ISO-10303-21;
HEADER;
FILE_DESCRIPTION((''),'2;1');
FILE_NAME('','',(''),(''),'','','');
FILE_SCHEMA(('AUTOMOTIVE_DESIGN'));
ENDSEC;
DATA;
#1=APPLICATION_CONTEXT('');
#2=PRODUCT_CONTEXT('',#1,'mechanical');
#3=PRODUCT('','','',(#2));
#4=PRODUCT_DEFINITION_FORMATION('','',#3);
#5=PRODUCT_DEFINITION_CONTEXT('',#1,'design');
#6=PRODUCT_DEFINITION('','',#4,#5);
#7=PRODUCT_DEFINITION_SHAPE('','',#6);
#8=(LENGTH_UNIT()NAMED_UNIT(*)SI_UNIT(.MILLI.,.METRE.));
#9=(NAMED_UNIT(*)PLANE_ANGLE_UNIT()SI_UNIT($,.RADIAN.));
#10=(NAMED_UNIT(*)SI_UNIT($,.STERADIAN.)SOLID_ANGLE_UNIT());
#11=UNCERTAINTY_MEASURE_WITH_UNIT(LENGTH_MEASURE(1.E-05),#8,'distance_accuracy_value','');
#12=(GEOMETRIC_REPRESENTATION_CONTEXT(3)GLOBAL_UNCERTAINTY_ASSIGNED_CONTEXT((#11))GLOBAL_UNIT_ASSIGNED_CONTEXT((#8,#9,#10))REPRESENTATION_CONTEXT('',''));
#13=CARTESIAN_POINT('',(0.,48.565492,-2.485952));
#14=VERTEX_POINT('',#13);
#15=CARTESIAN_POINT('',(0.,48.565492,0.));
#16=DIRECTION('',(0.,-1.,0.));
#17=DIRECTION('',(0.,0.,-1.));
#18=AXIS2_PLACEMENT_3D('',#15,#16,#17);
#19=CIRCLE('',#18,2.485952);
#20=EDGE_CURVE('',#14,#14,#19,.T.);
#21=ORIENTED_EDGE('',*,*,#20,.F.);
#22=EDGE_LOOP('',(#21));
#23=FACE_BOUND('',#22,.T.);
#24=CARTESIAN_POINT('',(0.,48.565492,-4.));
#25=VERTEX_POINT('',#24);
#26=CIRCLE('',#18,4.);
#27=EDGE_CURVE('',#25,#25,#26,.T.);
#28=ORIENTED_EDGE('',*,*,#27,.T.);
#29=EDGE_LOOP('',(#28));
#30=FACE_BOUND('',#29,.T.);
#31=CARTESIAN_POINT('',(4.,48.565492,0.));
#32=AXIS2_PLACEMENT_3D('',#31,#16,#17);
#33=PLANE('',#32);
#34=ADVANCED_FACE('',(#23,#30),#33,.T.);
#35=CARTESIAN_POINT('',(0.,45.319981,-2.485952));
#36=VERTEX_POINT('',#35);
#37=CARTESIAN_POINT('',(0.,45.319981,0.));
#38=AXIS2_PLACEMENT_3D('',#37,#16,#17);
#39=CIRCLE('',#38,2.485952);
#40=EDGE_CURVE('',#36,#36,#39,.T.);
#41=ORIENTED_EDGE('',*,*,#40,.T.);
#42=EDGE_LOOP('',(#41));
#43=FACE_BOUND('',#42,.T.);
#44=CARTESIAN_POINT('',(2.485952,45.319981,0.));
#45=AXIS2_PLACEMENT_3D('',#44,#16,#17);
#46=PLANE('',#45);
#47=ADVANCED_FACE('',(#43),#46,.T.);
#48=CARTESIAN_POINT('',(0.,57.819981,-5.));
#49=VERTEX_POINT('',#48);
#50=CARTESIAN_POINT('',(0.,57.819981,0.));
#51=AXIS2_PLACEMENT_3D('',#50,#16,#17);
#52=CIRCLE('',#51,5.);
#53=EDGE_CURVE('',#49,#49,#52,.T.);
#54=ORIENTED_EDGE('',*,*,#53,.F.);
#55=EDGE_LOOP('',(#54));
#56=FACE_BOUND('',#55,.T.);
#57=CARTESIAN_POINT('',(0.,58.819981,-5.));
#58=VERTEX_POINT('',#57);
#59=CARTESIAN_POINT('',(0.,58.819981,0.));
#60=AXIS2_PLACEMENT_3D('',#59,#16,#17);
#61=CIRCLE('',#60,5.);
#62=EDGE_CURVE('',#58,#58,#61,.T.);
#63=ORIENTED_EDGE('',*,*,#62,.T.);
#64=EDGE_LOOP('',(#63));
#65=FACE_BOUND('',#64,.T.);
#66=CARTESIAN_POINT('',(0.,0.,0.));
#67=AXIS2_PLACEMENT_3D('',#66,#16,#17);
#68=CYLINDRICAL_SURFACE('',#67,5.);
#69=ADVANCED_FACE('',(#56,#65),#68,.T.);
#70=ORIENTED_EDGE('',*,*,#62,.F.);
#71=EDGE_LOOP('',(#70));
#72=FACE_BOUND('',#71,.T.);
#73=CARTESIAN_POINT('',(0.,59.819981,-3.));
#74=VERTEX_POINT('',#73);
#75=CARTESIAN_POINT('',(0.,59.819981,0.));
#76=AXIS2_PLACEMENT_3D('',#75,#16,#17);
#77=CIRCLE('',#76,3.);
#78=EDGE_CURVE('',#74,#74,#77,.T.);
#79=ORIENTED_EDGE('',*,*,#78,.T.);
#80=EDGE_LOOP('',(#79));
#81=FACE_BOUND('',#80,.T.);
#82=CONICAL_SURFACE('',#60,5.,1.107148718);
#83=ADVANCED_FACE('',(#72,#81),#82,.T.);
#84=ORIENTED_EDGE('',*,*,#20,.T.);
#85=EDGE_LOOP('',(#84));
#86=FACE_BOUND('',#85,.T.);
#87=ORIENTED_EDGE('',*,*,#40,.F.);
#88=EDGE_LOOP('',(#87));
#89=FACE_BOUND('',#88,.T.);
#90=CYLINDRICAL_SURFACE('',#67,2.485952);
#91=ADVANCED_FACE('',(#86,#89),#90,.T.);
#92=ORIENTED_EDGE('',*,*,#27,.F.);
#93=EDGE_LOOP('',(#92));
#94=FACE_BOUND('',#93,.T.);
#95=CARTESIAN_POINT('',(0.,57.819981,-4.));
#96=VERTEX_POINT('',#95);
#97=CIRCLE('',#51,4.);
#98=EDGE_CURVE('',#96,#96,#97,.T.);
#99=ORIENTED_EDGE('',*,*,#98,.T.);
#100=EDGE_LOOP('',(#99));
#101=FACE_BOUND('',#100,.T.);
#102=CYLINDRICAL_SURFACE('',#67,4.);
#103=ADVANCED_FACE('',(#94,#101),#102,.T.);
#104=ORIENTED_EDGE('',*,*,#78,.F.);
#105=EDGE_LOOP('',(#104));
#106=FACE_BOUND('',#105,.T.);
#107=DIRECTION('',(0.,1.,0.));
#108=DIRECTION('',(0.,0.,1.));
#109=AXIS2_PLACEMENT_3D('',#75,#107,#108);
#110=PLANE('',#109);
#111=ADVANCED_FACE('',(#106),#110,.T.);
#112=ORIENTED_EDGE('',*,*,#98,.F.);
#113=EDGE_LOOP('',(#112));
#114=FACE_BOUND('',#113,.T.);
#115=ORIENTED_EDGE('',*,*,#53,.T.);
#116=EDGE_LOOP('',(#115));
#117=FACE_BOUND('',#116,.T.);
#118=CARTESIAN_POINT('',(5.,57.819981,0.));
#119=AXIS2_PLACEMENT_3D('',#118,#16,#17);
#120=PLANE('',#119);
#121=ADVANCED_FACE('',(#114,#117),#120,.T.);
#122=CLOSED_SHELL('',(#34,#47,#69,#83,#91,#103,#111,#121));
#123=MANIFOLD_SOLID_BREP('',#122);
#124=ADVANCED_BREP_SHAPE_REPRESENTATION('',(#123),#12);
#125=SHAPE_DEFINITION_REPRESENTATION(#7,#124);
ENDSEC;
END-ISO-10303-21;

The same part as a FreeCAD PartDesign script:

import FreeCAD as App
import Part
import Sketcher


def add_polygon(sketch, points):
    """Adds a closed chain of lines whose ends are joined by coincident constraints."""
    first, n = sketch.GeometryCount, len(points)
    for a, b in zip(points, points[1:] + points[:1]):
        sketch.addGeometry(Part.LineSegment(App.Vector(*a, 0), App.Vector(*b, 0)), False)
    for i in range(n):
        sketch.addConstraint(Sketcher.Constraint("Coincident", first + i, 2, first + (i + 1) % n, 1))

doc = App.newDocument("Part")
body = doc.addObject("PartDesign::Body", "Body")

# Sketch on XY plane
sketch1 = body.newObject("Sketcher::SketchObject", "Sketch")
sketch1.AttachmentSupport = (doc.getObject("XY_Plane"), [""])
sketch1.MapMode = "FlatFace"
add_polygon(sketch1, [(3, 59.8), (0, 59.8), (0, 45.3), (2.5, 45.3), (2.5, 48.6), (4, 48.6), (4, 57.8), (5, 57.8), (5, 58.8)])  # lines 0-8
sketch1.addConstraint(Sketcher.Constraint("Horizontal", 0))
sketch1.addConstraint(Sketcher.Constraint("Vertical", 1))
sketch1.addConstraint(Sketcher.Constraint("Horizontal", 2))
sketch1.addConstraint(Sketcher.Constraint("Vertical", 3))
sketch1.addConstraint(Sketcher.Constraint("Horizontal", 4))
sketch1.addConstraint(Sketcher.Constraint("Vertical", 5))
sketch1.addConstraint(Sketcher.Constraint("Horizontal", 6))
sketch1.addConstraint(Sketcher.Constraint("Vertical", 7))
sketch1.addConstraint(Sketcher.Constraint("PointOnObject", 0, 2, -2))
sketch1.addConstraint(Sketcher.Constraint("Equal", 6, 7))
sketch1.addConstraint(Sketcher.Constraint("DistanceX", 0, 2, 0, 1, 3.0))
sketch1.addConstraint(Sketcher.Constraint("DistanceX", 6, 1, 6, 2, 1.0))
sketch1.addConstraint(Sketcher.Constraint("DistanceY", 1, 2, 1, 1, 14.5))
sketch1.addConstraint(Sketcher.Constraint("DistanceX", -1, 1, 4, 2, 4.0))
sketch1.addConstraint(Sketcher.Constraint("DistanceY", 5, 2, 0, 2, 2.0))
sketch1.addConstraint(Sketcher.Constraint("DistanceX", 2, 1, 2, 2, 2.485952))
sketch1.addConstraint(Sketcher.Constraint("DistanceY", 3, 1, 3, 2, 3.245511))
sketch1.addConstraint(Sketcher.Constraint("DistanceY", -1, 1, 0, 2, 59.819981))
revolution = body.newObject("PartDesign::Revolution", "Revolution")
revolution.Profile = sketch1
revolution.ReferenceAxis = (sketch1, ["V_Axis"])
revolution.Angle = 360

doc.recompute()
